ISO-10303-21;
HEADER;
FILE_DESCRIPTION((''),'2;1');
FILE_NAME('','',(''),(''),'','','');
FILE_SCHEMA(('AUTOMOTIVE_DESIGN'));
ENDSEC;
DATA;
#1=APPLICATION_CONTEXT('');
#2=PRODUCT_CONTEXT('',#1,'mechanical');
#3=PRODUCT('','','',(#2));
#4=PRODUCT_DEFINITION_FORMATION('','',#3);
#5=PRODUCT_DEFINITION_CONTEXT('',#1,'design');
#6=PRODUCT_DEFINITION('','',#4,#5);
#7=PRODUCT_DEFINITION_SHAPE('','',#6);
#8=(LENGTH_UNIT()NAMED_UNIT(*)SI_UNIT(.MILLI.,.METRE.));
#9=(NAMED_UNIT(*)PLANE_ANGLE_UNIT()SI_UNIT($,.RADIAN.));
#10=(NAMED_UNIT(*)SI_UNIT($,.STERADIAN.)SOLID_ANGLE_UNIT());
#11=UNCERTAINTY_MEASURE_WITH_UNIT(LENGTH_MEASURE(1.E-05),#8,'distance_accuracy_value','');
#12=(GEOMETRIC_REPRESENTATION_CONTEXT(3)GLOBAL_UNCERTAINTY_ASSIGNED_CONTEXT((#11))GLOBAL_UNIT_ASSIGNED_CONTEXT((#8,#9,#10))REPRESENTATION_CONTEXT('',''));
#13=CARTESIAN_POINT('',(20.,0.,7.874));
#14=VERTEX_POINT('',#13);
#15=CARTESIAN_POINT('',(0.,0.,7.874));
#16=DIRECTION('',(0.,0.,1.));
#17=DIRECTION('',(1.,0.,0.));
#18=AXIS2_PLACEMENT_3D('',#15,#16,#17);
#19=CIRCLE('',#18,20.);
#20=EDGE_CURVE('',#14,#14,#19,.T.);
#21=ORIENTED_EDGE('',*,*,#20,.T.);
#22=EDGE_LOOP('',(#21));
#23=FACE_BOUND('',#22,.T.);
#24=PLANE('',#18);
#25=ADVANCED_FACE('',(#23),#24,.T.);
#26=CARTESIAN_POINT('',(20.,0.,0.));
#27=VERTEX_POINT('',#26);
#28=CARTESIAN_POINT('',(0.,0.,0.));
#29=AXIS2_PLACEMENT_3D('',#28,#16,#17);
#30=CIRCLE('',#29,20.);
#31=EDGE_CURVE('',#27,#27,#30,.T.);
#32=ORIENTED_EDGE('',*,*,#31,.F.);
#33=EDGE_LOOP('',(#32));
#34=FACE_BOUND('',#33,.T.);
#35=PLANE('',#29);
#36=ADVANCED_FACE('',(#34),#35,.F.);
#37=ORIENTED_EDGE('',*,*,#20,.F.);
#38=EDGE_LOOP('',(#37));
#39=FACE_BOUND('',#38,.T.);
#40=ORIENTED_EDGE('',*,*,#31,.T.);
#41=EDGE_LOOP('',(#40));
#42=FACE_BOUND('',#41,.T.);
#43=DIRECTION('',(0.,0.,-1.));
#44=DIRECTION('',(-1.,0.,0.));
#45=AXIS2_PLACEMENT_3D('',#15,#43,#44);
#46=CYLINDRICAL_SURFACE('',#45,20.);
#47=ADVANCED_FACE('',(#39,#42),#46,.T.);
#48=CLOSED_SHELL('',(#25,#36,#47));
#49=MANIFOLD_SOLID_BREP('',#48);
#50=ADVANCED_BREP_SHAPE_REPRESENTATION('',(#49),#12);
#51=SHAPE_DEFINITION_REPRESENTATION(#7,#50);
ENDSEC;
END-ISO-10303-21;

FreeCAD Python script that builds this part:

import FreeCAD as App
import Part
import Sketcher
Q = App.Units.Quantity

doc = App.newDocument("Part")
body = doc.addObject("PartDesign::Body", "Body")

sketch1 = doc.addObject("Sketcher::SketchObject", "Sketch")
body.addObject(sketch1)
sketch1.AttachmentSupport = (doc.XY_Plane, [""])
sketch1.MapMode = "FlatFace"
sketch1.addGeometry(Part.Circle(App.Vector(0, 0, 0), App.Vector(0, 0, 1), 20), False)
sketch1.addConstraint(Sketcher.Constraint("Coincident", 0, 3, -1, 1))
sketch1.addConstraint(Sketcher.Constraint("Diameter", 0, Q("40 mm")))
pad1 = doc.addObject("PartDesign::Pad", "Pad")
body.addObject(pad1)
pad1.Profile = sketch1
pad1.Length = 7.874

doc.recompute()
